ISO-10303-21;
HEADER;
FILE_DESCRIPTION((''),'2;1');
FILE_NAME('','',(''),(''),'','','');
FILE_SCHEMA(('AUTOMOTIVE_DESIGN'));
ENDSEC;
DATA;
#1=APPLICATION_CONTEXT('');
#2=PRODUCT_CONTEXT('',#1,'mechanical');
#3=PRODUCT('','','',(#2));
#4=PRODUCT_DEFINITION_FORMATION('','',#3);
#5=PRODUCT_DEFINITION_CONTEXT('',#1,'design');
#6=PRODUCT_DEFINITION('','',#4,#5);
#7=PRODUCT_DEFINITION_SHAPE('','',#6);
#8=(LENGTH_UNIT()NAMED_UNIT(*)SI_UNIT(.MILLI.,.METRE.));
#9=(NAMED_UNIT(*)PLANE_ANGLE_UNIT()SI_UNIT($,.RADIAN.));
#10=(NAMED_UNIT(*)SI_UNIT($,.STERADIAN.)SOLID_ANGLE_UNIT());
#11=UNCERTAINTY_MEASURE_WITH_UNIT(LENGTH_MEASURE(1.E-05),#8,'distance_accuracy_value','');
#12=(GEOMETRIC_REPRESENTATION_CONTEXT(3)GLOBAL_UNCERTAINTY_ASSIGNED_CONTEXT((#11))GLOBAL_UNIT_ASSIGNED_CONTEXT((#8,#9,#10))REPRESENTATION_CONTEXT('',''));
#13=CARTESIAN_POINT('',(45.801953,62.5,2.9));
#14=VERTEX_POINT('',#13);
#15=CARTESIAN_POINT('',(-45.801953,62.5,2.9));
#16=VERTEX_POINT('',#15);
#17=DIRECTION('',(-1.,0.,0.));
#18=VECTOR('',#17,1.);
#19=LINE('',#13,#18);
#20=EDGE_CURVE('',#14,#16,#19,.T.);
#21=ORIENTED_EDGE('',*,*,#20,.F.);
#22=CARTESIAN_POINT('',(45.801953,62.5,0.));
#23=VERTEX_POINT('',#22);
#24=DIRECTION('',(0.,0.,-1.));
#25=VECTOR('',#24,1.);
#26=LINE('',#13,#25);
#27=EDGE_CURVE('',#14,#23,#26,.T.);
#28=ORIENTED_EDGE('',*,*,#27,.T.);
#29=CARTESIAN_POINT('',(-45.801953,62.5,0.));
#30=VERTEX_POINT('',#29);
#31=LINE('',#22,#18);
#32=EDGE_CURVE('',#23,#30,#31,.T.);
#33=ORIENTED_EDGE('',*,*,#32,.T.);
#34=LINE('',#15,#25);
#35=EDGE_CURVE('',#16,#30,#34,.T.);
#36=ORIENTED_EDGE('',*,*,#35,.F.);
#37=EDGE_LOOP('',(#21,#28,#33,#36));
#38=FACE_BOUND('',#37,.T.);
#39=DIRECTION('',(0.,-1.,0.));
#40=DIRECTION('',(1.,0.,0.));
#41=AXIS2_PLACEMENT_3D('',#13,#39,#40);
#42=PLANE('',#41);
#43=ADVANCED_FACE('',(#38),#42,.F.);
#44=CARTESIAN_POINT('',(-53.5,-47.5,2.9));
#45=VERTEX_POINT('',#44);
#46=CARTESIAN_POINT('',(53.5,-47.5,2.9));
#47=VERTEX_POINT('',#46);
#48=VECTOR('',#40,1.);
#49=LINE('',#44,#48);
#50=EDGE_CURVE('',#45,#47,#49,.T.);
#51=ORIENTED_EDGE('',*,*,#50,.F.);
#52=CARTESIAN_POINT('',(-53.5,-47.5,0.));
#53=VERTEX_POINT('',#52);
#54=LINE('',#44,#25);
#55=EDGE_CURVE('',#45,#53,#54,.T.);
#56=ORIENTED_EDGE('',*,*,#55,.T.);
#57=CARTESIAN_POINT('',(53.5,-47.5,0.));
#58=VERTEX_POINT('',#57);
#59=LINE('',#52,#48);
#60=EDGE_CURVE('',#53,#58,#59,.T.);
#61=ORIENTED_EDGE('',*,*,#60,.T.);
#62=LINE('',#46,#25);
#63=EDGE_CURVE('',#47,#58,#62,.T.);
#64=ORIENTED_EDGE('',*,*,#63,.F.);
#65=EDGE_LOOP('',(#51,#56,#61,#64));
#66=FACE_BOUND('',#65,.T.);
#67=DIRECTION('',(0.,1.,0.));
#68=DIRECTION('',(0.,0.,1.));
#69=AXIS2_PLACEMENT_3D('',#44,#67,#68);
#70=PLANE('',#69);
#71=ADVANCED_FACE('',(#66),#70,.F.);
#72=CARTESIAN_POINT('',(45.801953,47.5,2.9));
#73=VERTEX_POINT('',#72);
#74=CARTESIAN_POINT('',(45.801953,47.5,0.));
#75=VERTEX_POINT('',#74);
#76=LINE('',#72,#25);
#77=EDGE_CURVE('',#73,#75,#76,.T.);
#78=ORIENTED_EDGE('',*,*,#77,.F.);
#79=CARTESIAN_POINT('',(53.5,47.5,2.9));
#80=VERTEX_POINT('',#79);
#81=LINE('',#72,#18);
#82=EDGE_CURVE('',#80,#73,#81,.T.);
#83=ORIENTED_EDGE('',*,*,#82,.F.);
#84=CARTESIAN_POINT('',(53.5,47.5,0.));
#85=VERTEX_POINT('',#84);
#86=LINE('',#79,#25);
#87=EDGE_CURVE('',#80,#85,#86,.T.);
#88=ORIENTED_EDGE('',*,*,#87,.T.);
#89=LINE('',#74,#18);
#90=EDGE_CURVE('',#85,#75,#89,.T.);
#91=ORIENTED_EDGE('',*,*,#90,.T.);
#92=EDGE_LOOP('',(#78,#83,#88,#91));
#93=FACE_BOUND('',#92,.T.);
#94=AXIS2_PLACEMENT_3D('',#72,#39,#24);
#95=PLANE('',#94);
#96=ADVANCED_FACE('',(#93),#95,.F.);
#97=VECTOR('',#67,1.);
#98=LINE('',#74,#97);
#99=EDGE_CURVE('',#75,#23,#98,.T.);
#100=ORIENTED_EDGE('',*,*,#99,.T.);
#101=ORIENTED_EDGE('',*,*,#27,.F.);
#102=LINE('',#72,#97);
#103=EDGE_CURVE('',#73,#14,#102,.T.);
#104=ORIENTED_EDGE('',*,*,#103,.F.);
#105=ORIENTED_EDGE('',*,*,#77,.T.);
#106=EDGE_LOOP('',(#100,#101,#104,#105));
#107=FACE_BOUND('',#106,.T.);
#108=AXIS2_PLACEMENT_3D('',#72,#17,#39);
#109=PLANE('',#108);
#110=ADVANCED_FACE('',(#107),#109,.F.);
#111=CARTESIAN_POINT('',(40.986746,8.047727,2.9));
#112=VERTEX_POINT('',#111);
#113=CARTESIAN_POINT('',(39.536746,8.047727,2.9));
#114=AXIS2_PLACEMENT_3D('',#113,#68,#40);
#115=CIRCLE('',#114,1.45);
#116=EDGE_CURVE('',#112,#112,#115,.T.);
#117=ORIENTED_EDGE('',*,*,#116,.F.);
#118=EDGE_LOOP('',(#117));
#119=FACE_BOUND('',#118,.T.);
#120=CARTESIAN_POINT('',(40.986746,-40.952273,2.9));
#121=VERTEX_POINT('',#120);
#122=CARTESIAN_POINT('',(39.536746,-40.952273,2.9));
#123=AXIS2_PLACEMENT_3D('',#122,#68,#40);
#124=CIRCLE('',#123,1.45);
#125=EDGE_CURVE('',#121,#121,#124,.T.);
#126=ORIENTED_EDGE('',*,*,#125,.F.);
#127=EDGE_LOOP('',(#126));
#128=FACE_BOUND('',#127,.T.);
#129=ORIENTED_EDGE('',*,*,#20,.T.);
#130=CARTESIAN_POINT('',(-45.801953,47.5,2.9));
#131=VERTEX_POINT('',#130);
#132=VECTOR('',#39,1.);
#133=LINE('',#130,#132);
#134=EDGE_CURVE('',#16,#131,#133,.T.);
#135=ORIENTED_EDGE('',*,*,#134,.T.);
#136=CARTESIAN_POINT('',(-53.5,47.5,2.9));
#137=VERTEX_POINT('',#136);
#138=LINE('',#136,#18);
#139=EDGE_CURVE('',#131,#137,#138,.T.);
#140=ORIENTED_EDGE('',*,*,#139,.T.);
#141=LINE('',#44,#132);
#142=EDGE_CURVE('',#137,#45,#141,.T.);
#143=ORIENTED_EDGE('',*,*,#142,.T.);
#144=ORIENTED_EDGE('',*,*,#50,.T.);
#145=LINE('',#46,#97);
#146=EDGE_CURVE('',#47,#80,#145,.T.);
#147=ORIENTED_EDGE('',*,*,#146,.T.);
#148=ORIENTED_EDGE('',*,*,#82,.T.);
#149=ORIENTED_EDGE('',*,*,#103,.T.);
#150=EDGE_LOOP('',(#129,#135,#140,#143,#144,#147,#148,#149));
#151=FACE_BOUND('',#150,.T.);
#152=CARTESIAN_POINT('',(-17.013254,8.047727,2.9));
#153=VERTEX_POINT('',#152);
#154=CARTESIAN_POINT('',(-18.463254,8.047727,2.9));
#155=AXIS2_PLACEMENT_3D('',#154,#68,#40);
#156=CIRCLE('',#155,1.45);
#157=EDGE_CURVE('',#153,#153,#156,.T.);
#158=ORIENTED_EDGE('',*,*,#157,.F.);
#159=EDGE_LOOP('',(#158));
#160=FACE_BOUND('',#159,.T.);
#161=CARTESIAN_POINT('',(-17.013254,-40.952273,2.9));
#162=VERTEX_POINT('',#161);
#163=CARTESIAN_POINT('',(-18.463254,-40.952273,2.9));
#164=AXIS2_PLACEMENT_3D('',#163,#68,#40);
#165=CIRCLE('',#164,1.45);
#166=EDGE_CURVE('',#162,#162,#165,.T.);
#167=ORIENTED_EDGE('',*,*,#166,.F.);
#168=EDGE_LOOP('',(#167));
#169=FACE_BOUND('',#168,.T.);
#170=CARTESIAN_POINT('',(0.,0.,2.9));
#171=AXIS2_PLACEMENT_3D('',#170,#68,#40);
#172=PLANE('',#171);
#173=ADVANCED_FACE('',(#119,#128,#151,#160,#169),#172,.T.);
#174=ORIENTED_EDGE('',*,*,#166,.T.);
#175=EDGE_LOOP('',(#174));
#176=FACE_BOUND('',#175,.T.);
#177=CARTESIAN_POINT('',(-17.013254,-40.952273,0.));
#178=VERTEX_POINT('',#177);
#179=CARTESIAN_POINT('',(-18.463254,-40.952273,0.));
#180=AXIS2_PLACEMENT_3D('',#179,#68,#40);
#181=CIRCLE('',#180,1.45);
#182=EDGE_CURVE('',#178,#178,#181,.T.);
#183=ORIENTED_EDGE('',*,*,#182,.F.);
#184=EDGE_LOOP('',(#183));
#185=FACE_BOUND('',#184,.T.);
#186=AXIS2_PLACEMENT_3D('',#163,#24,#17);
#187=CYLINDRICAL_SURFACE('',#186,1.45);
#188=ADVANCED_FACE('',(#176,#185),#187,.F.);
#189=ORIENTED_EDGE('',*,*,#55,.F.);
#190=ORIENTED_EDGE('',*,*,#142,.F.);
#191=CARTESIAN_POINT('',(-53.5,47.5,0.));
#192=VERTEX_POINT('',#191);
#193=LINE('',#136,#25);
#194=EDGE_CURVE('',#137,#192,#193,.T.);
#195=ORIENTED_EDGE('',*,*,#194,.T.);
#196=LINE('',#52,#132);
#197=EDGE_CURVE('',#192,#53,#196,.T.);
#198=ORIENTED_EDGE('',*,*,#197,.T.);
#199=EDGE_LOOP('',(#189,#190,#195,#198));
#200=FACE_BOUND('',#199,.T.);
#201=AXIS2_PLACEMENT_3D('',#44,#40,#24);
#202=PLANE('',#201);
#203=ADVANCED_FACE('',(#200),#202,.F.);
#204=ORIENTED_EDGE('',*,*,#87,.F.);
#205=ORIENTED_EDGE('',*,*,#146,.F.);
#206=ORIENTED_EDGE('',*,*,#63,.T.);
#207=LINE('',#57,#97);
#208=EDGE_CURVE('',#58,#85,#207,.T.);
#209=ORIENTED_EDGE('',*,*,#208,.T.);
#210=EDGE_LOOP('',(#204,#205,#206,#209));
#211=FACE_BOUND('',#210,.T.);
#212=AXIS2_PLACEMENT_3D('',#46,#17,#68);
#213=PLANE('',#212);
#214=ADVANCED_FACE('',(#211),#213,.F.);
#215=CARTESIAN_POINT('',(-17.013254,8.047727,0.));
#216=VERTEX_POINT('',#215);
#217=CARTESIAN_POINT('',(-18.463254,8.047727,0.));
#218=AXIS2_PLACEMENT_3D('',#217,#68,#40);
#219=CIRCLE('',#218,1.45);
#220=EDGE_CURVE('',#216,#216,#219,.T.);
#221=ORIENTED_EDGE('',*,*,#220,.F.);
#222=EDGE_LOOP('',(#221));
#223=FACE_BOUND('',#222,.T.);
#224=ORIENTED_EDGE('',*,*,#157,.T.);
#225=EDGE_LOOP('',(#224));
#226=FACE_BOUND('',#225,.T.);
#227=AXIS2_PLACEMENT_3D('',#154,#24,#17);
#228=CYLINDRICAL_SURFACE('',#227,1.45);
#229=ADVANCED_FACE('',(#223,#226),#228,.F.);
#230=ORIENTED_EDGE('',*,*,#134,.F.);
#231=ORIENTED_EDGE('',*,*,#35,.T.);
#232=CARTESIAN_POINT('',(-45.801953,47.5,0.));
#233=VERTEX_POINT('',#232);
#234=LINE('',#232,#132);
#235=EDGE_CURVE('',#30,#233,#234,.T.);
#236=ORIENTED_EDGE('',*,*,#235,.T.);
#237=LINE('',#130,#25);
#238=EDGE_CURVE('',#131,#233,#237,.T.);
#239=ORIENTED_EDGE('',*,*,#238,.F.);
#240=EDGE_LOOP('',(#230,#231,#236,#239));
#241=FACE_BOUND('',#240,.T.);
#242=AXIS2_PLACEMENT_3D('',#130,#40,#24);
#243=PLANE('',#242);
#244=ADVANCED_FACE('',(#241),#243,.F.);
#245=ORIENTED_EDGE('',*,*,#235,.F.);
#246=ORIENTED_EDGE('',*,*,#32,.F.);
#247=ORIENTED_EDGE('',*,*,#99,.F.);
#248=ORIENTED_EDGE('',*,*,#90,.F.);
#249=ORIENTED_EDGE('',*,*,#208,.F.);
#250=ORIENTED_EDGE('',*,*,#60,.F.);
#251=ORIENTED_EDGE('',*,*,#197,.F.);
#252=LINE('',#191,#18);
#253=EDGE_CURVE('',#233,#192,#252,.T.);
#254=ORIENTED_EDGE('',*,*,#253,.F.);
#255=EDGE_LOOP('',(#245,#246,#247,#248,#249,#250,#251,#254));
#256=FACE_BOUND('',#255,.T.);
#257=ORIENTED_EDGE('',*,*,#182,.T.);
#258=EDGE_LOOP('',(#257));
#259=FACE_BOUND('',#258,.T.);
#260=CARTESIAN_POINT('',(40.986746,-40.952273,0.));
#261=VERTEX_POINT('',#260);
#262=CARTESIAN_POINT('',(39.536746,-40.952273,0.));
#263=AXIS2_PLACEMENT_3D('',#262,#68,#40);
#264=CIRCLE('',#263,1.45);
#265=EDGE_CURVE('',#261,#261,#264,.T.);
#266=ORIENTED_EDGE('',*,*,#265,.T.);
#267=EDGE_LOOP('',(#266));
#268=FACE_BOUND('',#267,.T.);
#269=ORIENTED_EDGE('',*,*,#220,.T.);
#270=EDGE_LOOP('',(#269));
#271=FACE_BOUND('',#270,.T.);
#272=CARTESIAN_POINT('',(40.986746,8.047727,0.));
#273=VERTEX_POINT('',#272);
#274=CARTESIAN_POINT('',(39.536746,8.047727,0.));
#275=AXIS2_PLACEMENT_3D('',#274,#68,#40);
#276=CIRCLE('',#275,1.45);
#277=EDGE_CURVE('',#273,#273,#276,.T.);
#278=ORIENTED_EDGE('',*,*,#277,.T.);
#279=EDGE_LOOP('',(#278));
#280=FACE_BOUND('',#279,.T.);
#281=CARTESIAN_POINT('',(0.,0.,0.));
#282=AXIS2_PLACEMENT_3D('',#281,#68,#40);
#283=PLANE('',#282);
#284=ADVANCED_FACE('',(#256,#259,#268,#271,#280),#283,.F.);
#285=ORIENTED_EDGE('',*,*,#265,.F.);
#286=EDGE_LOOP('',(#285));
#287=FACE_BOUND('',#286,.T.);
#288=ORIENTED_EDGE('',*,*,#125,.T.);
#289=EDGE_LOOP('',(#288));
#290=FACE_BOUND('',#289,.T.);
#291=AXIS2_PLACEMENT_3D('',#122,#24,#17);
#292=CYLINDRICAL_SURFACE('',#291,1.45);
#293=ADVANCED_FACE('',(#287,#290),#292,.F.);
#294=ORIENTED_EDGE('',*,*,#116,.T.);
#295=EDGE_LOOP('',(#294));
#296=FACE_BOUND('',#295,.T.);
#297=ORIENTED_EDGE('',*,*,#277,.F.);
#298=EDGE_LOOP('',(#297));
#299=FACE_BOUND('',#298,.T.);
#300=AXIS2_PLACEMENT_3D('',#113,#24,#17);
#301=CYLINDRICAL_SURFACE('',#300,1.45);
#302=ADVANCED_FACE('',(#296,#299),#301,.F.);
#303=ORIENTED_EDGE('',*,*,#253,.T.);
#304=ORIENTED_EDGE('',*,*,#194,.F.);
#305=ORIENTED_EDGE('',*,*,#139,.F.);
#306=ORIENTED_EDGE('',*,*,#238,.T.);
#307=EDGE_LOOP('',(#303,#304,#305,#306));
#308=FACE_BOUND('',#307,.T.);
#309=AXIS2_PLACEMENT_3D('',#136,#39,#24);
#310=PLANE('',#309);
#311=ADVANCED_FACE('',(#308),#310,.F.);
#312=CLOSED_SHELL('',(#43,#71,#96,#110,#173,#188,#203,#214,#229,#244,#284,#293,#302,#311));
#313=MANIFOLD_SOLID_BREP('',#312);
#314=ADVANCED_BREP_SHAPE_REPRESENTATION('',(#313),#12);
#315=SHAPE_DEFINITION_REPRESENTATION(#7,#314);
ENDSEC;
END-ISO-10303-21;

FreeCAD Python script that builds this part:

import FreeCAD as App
import Part
import Sketcher

V = App.Vector


def add_polygon(sketch, points):
    """Adds a closed chain of lines whose ends are joined by coincident constraints."""
    first, n = sketch.GeometryCount, len(points)
    for a, b in zip(points, points[1:] + points[:1]):
        sketch.addGeometry(Part.LineSegment(App.Vector(*a, 0), App.Vector(*b, 0)), False)
    for i in range(n):
        sketch.addConstraint(Sketcher.Constraint("Coincident", first + i, 2, first + (i + 1) % n, 1))

doc = App.newDocument("Part")
params = doc.addObject("Spreadsheet::Sheet", "Params")
for row, (alias, value) in enumerate([
    ("sketch1_diameter", "2.9 mm"),
    ("sketch1_width", "107 mm"),
    ("sketch1_height", "95 mm"),
    ("sketch1_height2", "15 mm"),
    ("pad1_length", "2.9 mm"),
], start=1):
    params.set(f"A{row}", alias)
    params.set(f"B{row}", "=" + value)
    params.setAlias(f"B{row}", alias)

body = doc.addObject("PartDesign::Body", "Body")

# Sketch on XY plane
sketch1 = doc.addObject("Sketcher::SketchObject", "Sketch")
body.addObject(sketch1)
sketch1.AttachmentSupport = (doc.XY_Plane, [""])
sketch1.MapMode = "FlatFace"
add_polygon(sketch1, [(-53.5, -47.5), (53.5, -47.5), (53.5, 47.5), (45.8, 47.5), (45.8, 62.5), (-45.8, 62.5), (-45.8, 47.5), (-53.5, 47.5)])  # lines 0-7
sketch1.addGeometry(Part.Circle(V(-18.5, -41, 0), V(0, 0, 1), 1.4), False)  # 8
sketch1.addGeometry(Part.Circle(V(39.5, -41, 0), V(0, 0, 1), 1.4), False)  # 9
sketch1.addGeometry(Part.Circle(V(-18.5, 8, 0), V(0, 0, 1), 1.4), False)  # 10
sketch1.addGeometry(Part.Circle(V(39.5, 8, 0), V(0, 0, 1), 1.4), False)  # 11
sketch1.addConstraint(Sketcher.Constraint("Horizontal", 0))
sketch1.addConstraint(Sketcher.Constraint("Vertical", 1))
sketch1.addConstraint(Sketcher.Constraint("Horizontal", 2))
sketch1.addConstraint(Sketcher.Constraint("Vertical", 3))
sketch1.addConstraint(Sketcher.Constraint("Horizontal", 4))
sketch1.addConstraint(Sketcher.Constraint("Vertical", 5))
sketch1.addConstraint(Sketcher.Constraint("Horizontal", 6))
sketch1.addConstraint(Sketcher.Constraint("Vertical", 7))
sketch1.addConstraint(Sketcher.Constraint("Equal", 8, 9))
sketch1.addConstraint(Sketcher.Constraint("Equal", 9, 10))
sketch1.addConstraint(Sketcher.Constraint("Equal", 10, 11))
sketch1.addConstraint(Sketcher.Constraint("Symmetric", 0, 2, 6, 2, -1, 1))
sketch1.addConstraint(Sketcher.Constraint("Symmetric", 2, 2, 5, 2, -2))
sketch1.addConstraint(Sketcher.Constraint("Horizontal", 8, 3, 9, 3))
sketch1.addConstraint(Sketcher.Constraint("Horizontal", 10, 3, 11, 3))
sketch1.addConstraint(Sketcher.Constraint("Vertical", 8, 3, 10, 3))
sketch1.addConstraint(Sketcher.Constraint("Vertical", 9, 3, 11, 3))
sketch1.addConstraint(Sketcher.Constraint("Diameter", 8, 2.9))
sketch1.addConstraint(Sketcher.Constraint("DistanceX", 0, 1, 0, 2, 107.0))
sketch1.addConstraint(Sketcher.Constraint("DistanceY", 1, 1, 1, 2, 95.0))
sketch1.addConstraint(Sketcher.Constraint("DistanceY", 3, 1, 3, 2, 15.0))
sketch1.addConstraint(Sketcher.Constraint("DistanceX", 8, 3, 9, 3, 58.0))
sketch1.addConstraint(Sketcher.Constraint("DistanceY", 8, 3, 10, 3, 49.0))
sketch1.addConstraint(Sketcher.Constraint("DistanceX", 4, 2, 10, 3, 27.338699))
sketch1.addConstraint(Sketcher.Constraint("DistanceX", 2, 2, 2, 1, 7.698047))
sketch1.addConstraint(Sketcher.Constraint("DistanceY", 8, 3, -1, 1, 40.952273))
sketch1.setExpression("Constraints[25]", "Params.sketch1_diameter")
sketch1.setExpression("Constraints[26]", "Params.sketch1_width")
sketch1.setExpression("Constraints[27]", "Params.sketch1_height")
sketch1.setExpression("Constraints[28]", "Params.sketch1_height2")
pad1 = doc.addObject("PartDesign::Pad", "Pad")
body.addObject(pad1)
pad1.Profile = sketch1
pad1.setExpression("Length", "Params.pad1_length")

doc.recompute()
